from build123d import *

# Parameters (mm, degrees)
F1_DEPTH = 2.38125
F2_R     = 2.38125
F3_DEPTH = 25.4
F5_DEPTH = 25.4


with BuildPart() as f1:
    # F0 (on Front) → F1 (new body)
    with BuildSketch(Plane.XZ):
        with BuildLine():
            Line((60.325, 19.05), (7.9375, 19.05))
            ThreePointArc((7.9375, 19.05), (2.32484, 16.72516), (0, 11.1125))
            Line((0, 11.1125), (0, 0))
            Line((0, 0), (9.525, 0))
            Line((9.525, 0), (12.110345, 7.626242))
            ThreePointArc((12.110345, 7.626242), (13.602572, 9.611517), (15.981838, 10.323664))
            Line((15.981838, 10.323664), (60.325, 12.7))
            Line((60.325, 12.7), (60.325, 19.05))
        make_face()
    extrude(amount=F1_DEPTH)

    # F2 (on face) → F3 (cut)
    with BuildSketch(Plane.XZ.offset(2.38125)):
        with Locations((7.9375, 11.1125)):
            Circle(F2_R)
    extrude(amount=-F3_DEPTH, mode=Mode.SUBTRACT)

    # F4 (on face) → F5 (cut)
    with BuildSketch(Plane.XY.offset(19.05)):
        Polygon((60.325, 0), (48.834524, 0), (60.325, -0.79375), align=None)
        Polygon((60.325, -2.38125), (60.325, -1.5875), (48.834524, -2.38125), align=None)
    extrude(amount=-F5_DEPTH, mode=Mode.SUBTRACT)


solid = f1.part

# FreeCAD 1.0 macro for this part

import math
import FreeCAD as App
import Part
import Sketcher

V = App.Vector
Q = App.Units.Quantity


def add_polygon(sketch, points):
    """Adds a closed chain of lines whose ends are joined by coincident constraints."""
    first, n = sketch.GeometryCount, len(points)
    for a, b in zip(points, points[1:] + points[:1]):
        sketch.addGeometry(Part.LineSegment(App.Vector(*a, 0), App.Vector(*b, 0)), False)
    for i in range(n):
        sketch.addConstraint(Sketcher.Constraint("Coincident", first + i, 2, first + (i + 1) % n, 1))

doc = App.newDocument("Part")
params = doc.addObject("Spreadsheet::Sheet", "Params")
for row, (alias, value) in enumerate([
    ("sketch1_radius", "0.3125 in"),
    ("sketch1_height", "0.25 in"),
    ("sketch1_width", "2.0625 in"),
    ("pad1_length", "0.09375 in"),
    ("sketch2_diameter", "0.1875 in"),
    ("pocket1_length", "1 in"),
    ("sketch3_height", "0.03125 in"),
    ("pocket2_length", "1 in"),
], start=1):
    params.set(f"A{row}", alias)
    params.set(f"B{row}", "=" + value)
    params.setAlias(f"B{row}", alias)

body = doc.addObject("PartDesign::Body", "Body")

sketch1 = doc.addObject("Sketcher::SketchObject", "Sketch")
body.addObject(sketch1)
sketch1.AttachmentSupport = (doc.XZ_Plane, [""])
sketch1.MapMode = "FlatFace"
sketch1.addGeometry([
    Part.LineSegment(V(60.3, 19.1, 0), V(7.9, 19.1, 0)),
    Part.ArcOfCircle(Part.Circle(V(7.9, 11.1, 0), V(0, 0, 1), 7.9), math.radians(90), math.radians(180)),
    Part.LineSegment(V(0, 11.1, 0), V(0, 0, 0)),
    Part.LineSegment(V(0, 0, 0), V(9.5, 0, 0)),
    Part.LineSegment(V(9.5, 0, 0), V(12.1, 7.6, 0)),
    Part.ArcOfCircle(Part.Circle(V(15.9, 6.4, 0), V(0, 0, 1), 4), math.radians(88), math.radians(161)),
    Part.LineSegment(V(16, 10.3, 0), V(60.3, 12.7, 0)),
    Part.LineSegment(V(60.3, 12.7, 0), V(60.3, 19.1, 0)),
], False)
sketch1.addConstraint([
    Sketcher.Constraint("Tangent", 0, 2, 1, 1),
    Sketcher.Constraint("Tangent", 1, 2, 2, 1),
    Sketcher.Constraint("Coincident", 2, 2, 3, 1),
    Sketcher.Constraint("Coincident", 3, 2, 4, 1),
    Sketcher.Constraint("Tangent", 4, 2, 5, 2),
    Sketcher.Constraint("Coincident", 5, 1, 6, 1),
    Sketcher.Constraint("Coincident", 6, 2, 7, 1),
    Sketcher.Constraint("Coincident", 7, 2, 0, 1),
    Sketcher.Constraint("Horizontal", 0),
    Sketcher.Constraint("Vertical", 2),
    Sketcher.Constraint("Horizontal", 3),
    Sketcher.Constraint("Vertical", 7),
    Sketcher.Constraint("Coincident", 2, 2, -1, 1),
    Sketcher.Constraint("Radius", 1, Q("0.3125 in")),
    Sketcher.Constraint("DistanceX", 3, 2, 6, 2, Q("2 in")),
    Sketcher.Constraint("DistanceY", 7, 1, 7, 2, Q("0.25 in")),
    Sketcher.Constraint("DistanceY", -1, 1, 6, 2, Q("0.5 in")),
    Sketcher.Constraint("Radius", 5, Q("0.1565 in")),
    Sketcher.Constraint("DistanceY", 5, 3, 0, 2, Q("0.5 in")),
    Sketcher.Constraint("DistanceX", 0, 2, 0, 1, Q("2.0625 in")),
    Sketcher.Constraint("DistanceX", 3, 2, 5, 3, Q("0.25 in")),
    Sketcher.Constraint("Distance", 6, 44.40679),
])
sketch1.setExpression("Constraints[13]", "Params.sketch1_radius")
sketch1.setExpression("Constraints[15]", "Params.sketch1_height")
sketch1.setExpression("Constraints[19]", "Params.sketch1_width")
pad1 = doc.addObject("PartDesign::Pad", "Pad")
body.addObject(pad1)
pad1.Profile = sketch1
pad1.setExpression("Length", "Params.pad1_length")

sketch2 = doc.addObject("Sketcher::SketchObject", "Sketch001")
body.addObject(sketch2)
sketch2.AttachmentSupport = (doc.XZ_Plane, [""])
sketch2.MapMode = "FlatFace"
sketch2.AttachmentOffset = App.Placement(V(0, 0, 0.09375 * 25.4), App.Rotation())
sketch2.addGeometry(Part.Circle(V(7.9, 11.1, 0), V(0, 0, 1), 2.4), False)
sketch2.addConstraint([
    Sketcher.Constraint("Diameter", 0, Q("0.1875 in")),
    Sketcher.Constraint("DistanceX", -1, 1, 0, 3, Q("0.3125 in")),
    Sketcher.Constraint("DistanceY", -1, 1, 0, 3, Q("0.4375 in")),
])
sketch2.setExpression("Constraints[0]", "Params.sketch2_diameter")
pocket1 = doc.addObject("PartDesign::Pocket", "Pocket")
body.addObject(pocket1)
pocket1.Profile = sketch2
pocket1.setExpression("Length", "Params.pocket1_length")

sketch3 = doc.addObject("Sketcher::SketchObject", "Sketch002")
body.addObject(sketch3)
sketch3.AttachmentSupport = (doc.XY_Plane, [""])
sketch3.MapMode = "FlatFace"
sketch3.AttachmentOffset = App.Placement(V(0, 0, 0.75 * 25.4), App.Rotation())
add_polygon(sketch3, [(60.3, 0), (48.8, 0), (60.3, -0.8)])
add_polygon(sketch3, [(60.3, -2.4), (60.3, -1.6), (48.8, -2.4)])
sketch3.addConstraint([
    Sketcher.Constraint("Horizontal", 0),
    Sketcher.Constraint("Vertical", 2),
    Sketcher.Constraint("Vertical", 3),
    Sketcher.Constraint("Horizontal", 5),
    Sketcher.Constraint("PointOnObject", 0, 2, -1),
    Sketcher.Constraint("Vertical", 2, 2, 3, 2),
    Sketcher.Constraint("Vertical", 0, 2, 4, 2),
    Sketcher.Constraint("Equal", 2, 3),
    Sketcher.Constraint("DistanceY", 2, 1, 2, 2, Q("0.03125 in")),
    Sketcher.Constraint("DistanceX", -1, 1, 1, 2, Q("2.375 in")),
    Sketcher.Constraint("DistanceY", 3, 2, -1, 1, Q("0.0625 in")),
    Sketcher.Constraint("Distance", 1, 11.517859),
])
sketch3.setExpression("Constraints[14]", "Params.sketch3_height")
pocket2 = doc.addObject("PartDesign::Pocket", "Pocket001")
body.addObject(pocket2)
pocket2.Profile = sketch3
pocket2.setExpression("Length", "Params.pocket2_length")

doc.recompute()
